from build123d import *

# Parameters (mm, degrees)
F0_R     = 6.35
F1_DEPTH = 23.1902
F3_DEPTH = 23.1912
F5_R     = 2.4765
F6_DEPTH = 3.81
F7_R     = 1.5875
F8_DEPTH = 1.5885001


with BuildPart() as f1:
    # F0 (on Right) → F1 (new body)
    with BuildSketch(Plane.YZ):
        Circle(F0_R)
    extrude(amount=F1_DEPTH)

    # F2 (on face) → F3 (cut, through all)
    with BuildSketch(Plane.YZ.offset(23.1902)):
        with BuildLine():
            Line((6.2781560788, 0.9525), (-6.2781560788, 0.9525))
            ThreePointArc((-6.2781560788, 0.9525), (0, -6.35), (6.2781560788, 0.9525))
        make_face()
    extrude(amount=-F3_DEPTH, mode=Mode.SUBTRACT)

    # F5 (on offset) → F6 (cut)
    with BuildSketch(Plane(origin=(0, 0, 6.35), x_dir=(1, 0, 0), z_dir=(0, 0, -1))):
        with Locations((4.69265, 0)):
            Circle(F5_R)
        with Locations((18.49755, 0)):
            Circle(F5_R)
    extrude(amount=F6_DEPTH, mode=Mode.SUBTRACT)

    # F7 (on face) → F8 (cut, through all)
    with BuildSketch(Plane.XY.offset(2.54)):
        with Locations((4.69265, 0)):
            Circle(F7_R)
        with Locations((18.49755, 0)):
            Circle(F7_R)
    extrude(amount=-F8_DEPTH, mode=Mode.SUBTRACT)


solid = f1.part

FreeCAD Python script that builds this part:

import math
import FreeCAD as App
import Part
import Sketcher
from FreeCAD import Vector
Q = App.Units.Quantity

doc = App.newDocument("Part")
params = doc.addObject("Spreadsheet::Sheet", "Params")
for row, (alias, value) in enumerate([
    ("sketch1_diameter", "0.5 in"),
    ("pad1_length", "0.913 in"),
    ("sketch2_radius", "0.25 in"),
    ("sketch3_diameter", "0.195 in"),
    ("pocket2_length", "0.15 in"),
    ("sketch4_diameter", "0.125 in"),
], start=1):
    params.set(f"A{row}", alias)
    params.set(f"B{row}", "=" + value)
    params.setAlias(f"B{row}", alias)

body = doc.addObject("PartDesign::Body", "Body")

# Sketch on YZ plane
sketch1 = body.newObject("Sketcher::SketchObject", "Sketch")
sketch1.AttachmentSupport = (doc.getObject("YZ_Plane"), [""])
sketch1.MapMode = "FlatFace"
sketch1.addGeometry(Part.Circle(Vector(0, 0, 0), Vector(0, 0, 1), 6), False)
sketch1.addConstraint(Sketcher.Constraint("Coincident", 0, 3, -1, 1))
sketch1.addConstraint(Sketcher.Constraint("Diameter", 0, Q("0.5 in")))
sketch1.setExpression("Constraints[1]", "Params.sketch1_diameter")
pad1 = body.newObject("PartDesign::Pad", "Pad")
pad1.Profile = sketch1
pad1.setExpression("Length", "Params.pad1_length")

# Sketch on YZ plane
sketch2 = body.newObject("Sketcher::SketchObject", "Sketch001")
sketch2.AttachmentSupport = (doc.getObject("YZ_Plane"), [""])
sketch2.MapMode = "FlatFace"
sketch2.AttachmentOffset = App.Placement(Vector(0, 0, 0.913 * 25.4), App.Rotation())
sketch2.addGeometry(Part.LineSegment(Vector(6, 1, 0), Vector(-6, 1, 0)), False)
sketch2.addGeometry(Part.ArcOfCircle(Part.Circle(Vector(0, 0, 0), Vector(0, 0, 1), 6), math.radians(171), math.radians(369)), False)
sketch2.addConstraint(Sketcher.Constraint("Coincident", 0, 1, 1, 2))
sketch2.addConstraint(Sketcher.Constraint("Coincident", 1, 1, 0, 2))
sketch2.addConstraint(Sketcher.Constraint("Horizontal", 0))
sketch2.addConstraint(Sketcher.Constraint("Coincident", 1, 3, -1, 1))
sketch2.addConstraint(Sketcher.Constraint("Radius", 1, Q("0.25 in")))
sketch2.addConstraint(Sketcher.Constraint("DistanceY", -1, 1, 0, 1, Q("0.0375 in")))
sketch2.setExpression("Constraints[4]", "Params.sketch2_radius")
pocket1 = body.newObject("PartDesign::Pocket", "Pocket")
pocket1.Profile = sketch2
pocket1.Type = "ThroughAll"

# Sketch on XY plane
sketch3 = body.newObject("Sketcher::SketchObject", "Sketch002")
sketch3.AttachmentSupport = (doc.getObject("XY_Plane"), [""])
sketch3.MapMode = "FlatFace"
sketch3.AttachmentOffset = App.Placement(Vector(0, 0, 0.25 * 25.4), App.Rotation())
sketch3.addGeometry(Part.Circle(Vector(4.7, 0, 0), Vector(0, 0, 1), 2.5), False)
sketch3.addGeometry(Part.Circle(Vector(18.5, 0, 0), Vector(0, 0, 1), 2.5), False)
sketch3.addConstraint(Sketcher.Constraint("Equal", 0, 1))
sketch3.addConstraint(Sketcher.Constraint("PointOnObject", 0, 3, -1))
sketch3.addConstraint(Sketcher.Constraint("PointOnObject", 1, 3, -1))
sketch3.addConstraint(Sketcher.Constraint("Diameter", 0, Q("0.195 in")))
sketch3.addConstraint(Sketcher.Constraint("DistanceX", 0, 3, 1, 3, Q("0.5435 in")))
sketch3.addConstraint(Sketcher.Constraint("DistanceX", -1, 1, 0, 3, 4.69265))
sketch3.setExpression("Constraints[3]", "Params.sketch3_diameter")
pocket2 = body.newObject("PartDesign::Pocket", "Pocket001")
pocket2.Profile = sketch3
pocket2.setExpression("Length", "Params.pocket2_length")

# Sketch on XY plane
sketch4 = body.newObject("Sketcher::SketchObject", "Sketch003")
sketch4.AttachmentSupport = (doc.getObject("XY_Plane"), [""])
sketch4.MapMode = "FlatFace"
sketch4.AttachmentOffset = App.Placement(Vector(0, 0, 0.1 * 25.4), App.Rotation())
sketch4.addGeometry(Part.Circle(Vector(4.7, 0, 0), Vector(0, 0, 1), 1.6), False)
sketch4.addGeometry(Part.Circle(Vector(18.5, 0, 0), Vector(0, 0, 1), 1.6), False)
sketch4.addConstraint(Sketcher.Constraint("Equal", 0, 1))
sketch4.addConstraint(Sketcher.Constraint("PointOnObject", 0, 3, -1))
sketch4.addConstraint(Sketcher.Constraint("PointOnObject", 1, 3, -1))
sketch4.addConstraint(Sketcher.Constraint("Diameter", 0, Q("0.125 in")))
sketch4.addConstraint(Sketcher.Constraint("DistanceX", 0, 3, 1, 3, Q("0.5435 in")))
sketch4.addConstraint(Sketcher.Constraint("DistanceX", -1, 1, 0, 3, 4.69265))
sketch4.setExpression("Constraints[3]", "Params.sketch4_diameter")
pocket3 = body.newObject("PartDesign::Pocket", "Pocket002")
pocket3.Profile = sketch4
pocket3.Type = "ThroughAll"

doc.recompute()
